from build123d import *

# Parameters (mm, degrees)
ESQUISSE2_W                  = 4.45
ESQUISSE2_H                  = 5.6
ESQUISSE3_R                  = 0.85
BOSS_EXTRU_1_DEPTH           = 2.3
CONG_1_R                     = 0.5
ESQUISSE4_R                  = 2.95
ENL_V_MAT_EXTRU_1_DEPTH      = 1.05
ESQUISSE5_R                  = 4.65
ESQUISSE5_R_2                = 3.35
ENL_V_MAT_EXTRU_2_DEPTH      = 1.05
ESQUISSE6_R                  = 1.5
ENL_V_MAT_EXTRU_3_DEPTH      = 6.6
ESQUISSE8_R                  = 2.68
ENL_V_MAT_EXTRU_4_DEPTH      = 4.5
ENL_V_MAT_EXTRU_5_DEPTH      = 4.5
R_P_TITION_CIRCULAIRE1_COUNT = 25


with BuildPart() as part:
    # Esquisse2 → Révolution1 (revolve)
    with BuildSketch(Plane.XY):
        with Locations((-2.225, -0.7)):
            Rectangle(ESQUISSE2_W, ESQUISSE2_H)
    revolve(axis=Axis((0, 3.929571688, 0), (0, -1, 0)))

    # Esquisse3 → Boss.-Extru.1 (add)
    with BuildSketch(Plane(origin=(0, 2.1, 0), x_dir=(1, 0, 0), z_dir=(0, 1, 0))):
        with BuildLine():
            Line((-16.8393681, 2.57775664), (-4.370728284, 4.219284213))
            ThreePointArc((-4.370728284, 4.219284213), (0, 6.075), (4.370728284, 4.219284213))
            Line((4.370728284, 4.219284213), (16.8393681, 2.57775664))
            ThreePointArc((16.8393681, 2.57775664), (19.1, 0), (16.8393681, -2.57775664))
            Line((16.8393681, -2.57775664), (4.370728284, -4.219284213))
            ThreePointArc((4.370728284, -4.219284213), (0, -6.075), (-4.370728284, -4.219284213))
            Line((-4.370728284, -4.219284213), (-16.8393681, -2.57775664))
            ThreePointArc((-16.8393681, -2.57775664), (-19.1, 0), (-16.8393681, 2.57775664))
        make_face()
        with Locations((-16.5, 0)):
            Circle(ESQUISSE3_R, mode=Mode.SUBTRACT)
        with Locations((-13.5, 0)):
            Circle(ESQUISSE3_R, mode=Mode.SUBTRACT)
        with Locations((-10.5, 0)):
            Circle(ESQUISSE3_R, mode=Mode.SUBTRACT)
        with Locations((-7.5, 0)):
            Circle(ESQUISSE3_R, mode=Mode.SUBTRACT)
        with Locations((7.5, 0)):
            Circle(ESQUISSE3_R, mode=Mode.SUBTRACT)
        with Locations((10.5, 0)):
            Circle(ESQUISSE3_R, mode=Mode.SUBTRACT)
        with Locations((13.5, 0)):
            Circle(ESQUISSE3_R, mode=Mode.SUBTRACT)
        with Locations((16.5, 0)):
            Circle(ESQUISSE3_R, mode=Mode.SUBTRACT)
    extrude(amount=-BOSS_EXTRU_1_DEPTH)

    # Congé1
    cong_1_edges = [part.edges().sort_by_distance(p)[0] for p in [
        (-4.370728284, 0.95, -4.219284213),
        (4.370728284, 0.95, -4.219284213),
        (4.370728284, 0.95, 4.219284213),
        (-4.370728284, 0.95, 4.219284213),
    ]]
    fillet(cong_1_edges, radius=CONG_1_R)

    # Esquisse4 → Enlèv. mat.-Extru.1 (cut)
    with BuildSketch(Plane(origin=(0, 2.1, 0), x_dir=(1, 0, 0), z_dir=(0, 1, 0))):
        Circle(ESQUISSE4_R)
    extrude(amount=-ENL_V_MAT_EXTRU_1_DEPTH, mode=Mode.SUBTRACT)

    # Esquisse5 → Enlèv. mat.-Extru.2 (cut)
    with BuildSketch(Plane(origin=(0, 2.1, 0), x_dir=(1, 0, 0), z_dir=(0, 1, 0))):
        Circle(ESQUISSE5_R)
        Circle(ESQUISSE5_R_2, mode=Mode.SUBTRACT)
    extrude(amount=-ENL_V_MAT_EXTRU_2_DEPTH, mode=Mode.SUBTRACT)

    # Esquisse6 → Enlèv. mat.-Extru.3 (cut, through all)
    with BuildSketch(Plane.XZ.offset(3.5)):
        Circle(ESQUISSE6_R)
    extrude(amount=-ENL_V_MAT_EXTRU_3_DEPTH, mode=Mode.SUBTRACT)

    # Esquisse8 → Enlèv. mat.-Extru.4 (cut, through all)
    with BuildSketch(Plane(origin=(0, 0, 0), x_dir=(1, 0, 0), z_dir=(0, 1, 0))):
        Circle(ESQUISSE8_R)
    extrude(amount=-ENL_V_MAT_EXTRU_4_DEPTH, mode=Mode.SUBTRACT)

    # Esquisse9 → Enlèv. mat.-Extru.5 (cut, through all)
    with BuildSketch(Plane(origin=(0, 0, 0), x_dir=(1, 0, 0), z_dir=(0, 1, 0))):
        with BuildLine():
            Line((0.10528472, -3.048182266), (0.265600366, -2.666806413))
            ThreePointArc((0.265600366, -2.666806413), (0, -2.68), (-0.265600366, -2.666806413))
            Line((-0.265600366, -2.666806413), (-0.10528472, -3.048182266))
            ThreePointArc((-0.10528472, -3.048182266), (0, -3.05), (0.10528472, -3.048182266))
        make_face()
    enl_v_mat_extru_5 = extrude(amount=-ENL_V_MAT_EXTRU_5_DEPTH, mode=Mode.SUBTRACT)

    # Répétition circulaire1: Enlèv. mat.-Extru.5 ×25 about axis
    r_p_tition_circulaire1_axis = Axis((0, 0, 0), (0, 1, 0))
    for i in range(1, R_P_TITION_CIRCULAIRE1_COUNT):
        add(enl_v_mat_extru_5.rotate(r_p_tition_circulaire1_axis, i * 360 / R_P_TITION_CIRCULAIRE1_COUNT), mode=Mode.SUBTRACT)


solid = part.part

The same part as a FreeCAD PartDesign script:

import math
import FreeCAD as App
import Part
import Sketcher
Q = App.Units.Quantity


def edges_at(feature, points):
    """Names of the edges that pass closest to the given points."""
    edges = feature.Shape.Edges
    near = lambda p: min(range(len(edges)), key=lambda i: edges[i].distToShape(Part.Vertex(*p))[0])
    return sorted({f"Edge{near(p) + 1}" for p in points})

doc = App.newDocument("Part")
body = doc.addObject("PartDesign::Body", "Body")

# Sketch on XY plane
sketch1 = body.newObject("Sketcher::SketchObject", "Sketch")
sketch1.AttachmentSupport = (doc.getObject("XY_Plane"), [""])
sketch1.MapMode = "FlatFace"
sketch1.addGeometry([
    Part.LineSegment(App.Vector(-4.5, 2.1, 0), App.Vector(-4.5, -3.5, 0)),
    Part.LineSegment(App.Vector(-4.5, -3.5, 0), App.Vector(0, -3.5, 0)),
    Part.LineSegment(App.Vector(0, -3.5, 0), App.Vector(0, 2.1, 0)),
    Part.LineSegment(App.Vector(0, 2.1, 0), App.Vector(-4.5, 2.1, 0)),
], False)
sketch1.addConstraint([
    Sketcher.Constraint("Coincident", 0, 2, 1, 1),
    Sketcher.Constraint("Coincident", 1, 2, 2, 1),
    Sketcher.Constraint("Coincident", 2, 2, 3, 1),
    Sketcher.Constraint("Coincident", 3, 2, 0, 1),
    Sketcher.Constraint("Vertical", 0),
    Sketcher.Constraint("Horizontal", 1),
    Sketcher.Constraint("Vertical", 2),
    Sketcher.Constraint("Horizontal", 3),
    Sketcher.Constraint("PointOnObject", 1, 2, -2),
    Sketcher.Constraint("DistanceY", 0, 2, 0, 1, 5.6),
    Sketcher.Constraint("DistanceX", 1, 1, 1, 2, 4.45),
    Sketcher.Constraint("DistanceY", 0, 2, -1, 1, 3.5),
])
revolution = body.newObject("PartDesign::Revolution", "Revolution")
revolution.Profile = sketch1
revolution.ReferenceAxis = (sketch1, ["V_Axis"])
revolution.Angle = 360

# Sketch on XZ plane
sketch2 = body.newObject("Sketcher::SketchObject", "Sketch001")
sketch2.AttachmentSupport = (doc.getObject("XZ_Plane"), [""])
sketch2.MapMode = "FlatFace"
sketch2.AttachmentOffset = App.Placement(App.Vector(0, 0, -2.1), App.Rotation())
sketch2.addGeometry([
    Part.LineSegment(App.Vector(-4.4, -4.2, 0), App.Vector(-16.8, -2.6, 0)),  # 0
    Part.ArcOfCircle(Part.Circle(App.Vector(-16.5, 0, 0), App.Vector(0, 0, 1), 2.6), math.radians(98), math.radians(262)),  # 1
    Part.LineSegment(App.Vector(-16.8, 2.6, 0), App.Vector(-4.4, 4.2, 0)),  # 2
    Part.ArcOfCircle(Part.Circle(App.Vector(0, 0, 0), App.Vector(0, 0, 1), 6.1), math.radians(44), math.radians(136)),  # 3
    Part.LineSegment(App.Vector(4.4, 4.2, 0), App.Vector(16.8, 2.6, 0)),  # 4
    Part.ArcOfCircle(Part.Circle(App.Vector(16.5, 0, 0), App.Vector(0, 0, 1), 2.6), math.radians(-82), math.radians(82)),  # 5
    Part.LineSegment(App.Vector(16.8, -2.6, 0), App.Vector(4.4, -4.2, 0)),  # 6
    Part.ArcOfCircle(Part.Circle(App.Vector(0, 0, 0), App.Vector(0, 0, 1), 6.1), math.radians(-136), math.radians(-44)),  # 7
    Part.Circle(App.Vector(16.5, 0, 0), App.Vector(0, 0, 1), 0.8),  # 8
    Part.Circle(App.Vector(13.5, 0, 0), App.Vector(0, 0, 1), 0.8),  # 9
    Part.Circle(App.Vector(10.5, 0, 0), App.Vector(0, 0, 1), 0.8),  # 10
    Part.Circle(App.Vector(7.5, 0, 0), App.Vector(0, 0, 1), 0.8),  # 11
    Part.Circle(App.Vector(-7.5, 0, 0), App.Vector(0, 0, 1), 0.8),  # 12
    Part.Circle(App.Vector(-10.5, 0, 0), App.Vector(0, 0, 1), 0.8),  # 13
    Part.Circle(App.Vector(-13.5, 0, 0), App.Vector(0, 0, 1), 0.8),  # 14
    Part.Circle(App.Vector(-16.5, 0, 0), App.Vector(0, 0, 1), 0.8),  # 15
], False)
sketch2.addConstraint([
    Sketcher.Constraint("Tangent", 0, 2, 1, 2),
    Sketcher.Constraint("Tangent", 1, 1, 2, 1),
    Sketcher.Constraint("Coincident", 2, 2, 3, 2),
    Sketcher.Constraint("Coincident", 3, 1, 4, 1),
    Sketcher.Constraint("Tangent", 4, 2, 5, 2),
    Sketcher.Constraint("Tangent", 5, 1, 6, 1),
    Sketcher.Constraint("Coincident", 6, 2, 7, 2),
    Sketcher.Constraint("Coincident", 7, 1, 0, 1),
    Sketcher.Constraint("Coincident", 3, 3, -1, 1),
    Sketcher.Constraint("Coincident", 7, 3, -1, 1),
    Sketcher.Constraint("Coincident", 8, 3, 5, 3),
    Sketcher.Constraint("Coincident", 15, 3, 1, 3),
    Sketcher.Constraint("Equal", 1, 5),
    Sketcher.Constraint("Equal", 3, 7),
    Sketcher.Constraint("Equal", 8, 9),
    Sketcher.Constraint("Equal", 9, 10),
    Sketcher.Constraint("Equal", 10, 11),
    Sketcher.Constraint("Equal", 11, 12),
    Sketcher.Constraint("Equal", 12, 13),
    Sketcher.Constraint("Equal", 13, 14),
    Sketcher.Constraint("Equal", 14, 15),
    Sketcher.Constraint("Symmetric", 1, 3, 5, 3, -1, 1),
    Sketcher.Constraint("Symmetric", 11, 3, 12, 3, -1, 1),
    Sketcher.Constraint("Symmetric", 10, 3, 13, 3, -1, 1),
    Sketcher.Constraint("Symmetric", 9, 3, 14, 3, -1, 1),
    Sketcher.Constraint("Symmetric", 1, 1, 4, 2, -2),
    Sketcher.Constraint("PointOnObject", 9, 3, -1),
    Sketcher.Constraint("PointOnObject", 10, 3, -1),
    Sketcher.Constraint("PointOnObject", 11, 3, -1),
    Sketcher.Constraint("Parallel", 0, 4),
    Sketcher.Constraint("Parallel", 2, 6),
    Sketcher.Constraint("Diameter", 8, 1.7),
    Sketcher.Constraint("Radius", 1, 2.6),
    Sketcher.Constraint("Angle", 0, Q("172.5 deg")),
    Sketcher.Constraint("Radius", 3, 6.075),
    Sketcher.Constraint("DistanceX", 1, 3, 5, 3, 33.0),
    Sketcher.Constraint("DistanceX", 9, 3, 5, 3, 3.0),
    Sketcher.Constraint("DistanceX", 10, 3, 9, 3, 3.0),
    Sketcher.Constraint("DistanceX", 11, 3, 10, 3, 3.0),
])
pad1 = body.newObject("PartDesign::Pad", "Pad")
pad1.Profile = sketch2
pad1.Length = 2.3
doc.recompute()

fillet = body.newObject("PartDesign::Fillet", "Fillet")
fillet.Base = (pad1, edges_at(pad1, [
    (-4.371, 0.95, -4.219),
    (4.371, 0.95, -4.219),
    (4.371, 0.95, 4.219),
    (-4.371, 0.95, 4.219),
]))
fillet.Radius = 0.5

# Sketch on XZ plane
sketch3 = body.newObject("Sketcher::SketchObject", "Sketch002")
sketch3.AttachmentSupport = (doc.getObject("XZ_Plane"), [""])
sketch3.MapMode = "FlatFace"
sketch3.AttachmentOffset = App.Placement(App.Vector(0, 0, -2.1), App.Rotation())
sketch3.addGeometry(Part.Circle(App.Vector(0, 0, 0), App.Vector(0, 0, 1), 3), False)
sketch3.addConstraint([
    Sketcher.Constraint("Coincident", 0, 3, -1, 1),
    Sketcher.Constraint("Diameter", 0, 5.9),
])
pocket1 = body.newObject("PartDesign::Pocket", "Pocket")
pocket1.Profile = sketch3
pocket1.Length = 1.05
pocket1.Reversed = True

# Sketch on XZ plane
sketch4 = body.newObject("Sketcher::SketchObject", "Sketch003")
sketch4.AttachmentSupport = (doc.getObject("XZ_Plane"), [""])
sketch4.MapMode = "FlatFace"
sketch4.AttachmentOffset = App.Placement(App.Vector(0, 0, -2.1), App.Rotation())
sketch4.addGeometry([
    Part.Circle(App.Vector(0, 0, 0), App.Vector(0, 0, 1), 4.7),
    Part.Circle(App.Vector(0, 0, 0), App.Vector(0, 0, 1), 3.4),
], False)
sketch4.addConstraint([
    Sketcher.Constraint("Coincident", 0, 3, -1, 1),
    Sketcher.Constraint("Coincident", 1, 3, -1, 1),
    Sketcher.Constraint("Diameter", 0, 9.3),
    Sketcher.Constraint("Diameter", 1, 6.7),
])
pocket2 = body.newObject("PartDesign::Pocket", "Pocket001")
pocket2.Profile = sketch4
pocket2.Length = 1.05
pocket2.Reversed = True

# Sketch on XZ plane
sketch5 = body.newObject("Sketcher::SketchObject", "Sketch004")
sketch5.AttachmentSupport = (doc.getObject("XZ_Plane"), [""])
sketch5.MapMode = "FlatFace"
sketch5.AttachmentOffset = App.Placement(App.Vector(0, 0, 3.5), App.Rotation())
sketch5.addGeometry(Part.Circle(App.Vector(0, 0, 0), App.Vector(0, 0, 1), 1.5), False)
sketch5.addConstraint([
    Sketcher.Constraint("Coincident", 0, 3, -1, 1),
    Sketcher.Constraint("Diameter", 0, 3.0),
])
pocket3 = body.newObject("PartDesign::Pocket", "Pocket002")
pocket3.Profile = sketch5
pocket3.Type = "ThroughAll"

# Sketch on XZ plane
sketch6 = body.newObject("Sketcher::SketchObject", "Sketch005")
sketch6.AttachmentSupport = (doc.getObject("XZ_Plane"), [""])
sketch6.MapMode = "FlatFace"
sketch6.addGeometry(Part.Circle(App.Vector(0, 0, 0), App.Vector(0, 0, 1), 2.7), False)
sketch6.addConstraint([
    Sketcher.Constraint("Coincident", 0, 3, -1, 1),
    Sketcher.Constraint("Diameter", 0, 5.36),
])
pocket4 = body.newObject("PartDesign::Pocket", "Pocket003")
pocket4.Profile = sketch6
pocket4.Type = "ThroughAll"
pocket4.Reversed = True

# Sketch on XZ plane
sketch7 = body.newObject("Sketcher::SketchObject", "Sketch006")
sketch7.AttachmentSupport = (doc.getObject("XZ_Plane"), [""])
sketch7.MapMode = "FlatFace"
sketch7.addGeometry([
    Part.LineSegment(App.Vector(0.11, 3.05, 0), App.Vector(0.27, 2.67, 0)),
    Part.ArcOfCircle(Part.Circle(App.Vector(0, 0, 0), App.Vector(0, 0, 1), 2.68), math.radians(84.31), math.radians(95.69)),
    Part.LineSegment(App.Vector(-0.27, 2.67, 0), App.Vector(-0.11, 3.05, 0)),
    Part.ArcOfCircle(Part.Circle(App.Vector(0, 0, 0), App.Vector(0, 0, 1), 3.05), math.radians(88.02), math.radians(91.98)),
], False)
sketch7.addConstraint([
    Sketcher.Constraint("Coincident", 0, 2, 1, 1),
    Sketcher.Constraint("Coincident", 1, 2, 2, 1),
    Sketcher.Constraint("Coincident", 2, 2, 3, 2),
    Sketcher.Constraint("Coincident", 3, 1, 0, 1),
    Sketcher.Constraint("Coincident", 1, 3, -1, 1),
    Sketcher.Constraint("Coincident", 3, 3, -1, 1),
    Sketcher.Constraint("Horizontal", 0, 2, 1, 2),
    Sketcher.Constraint("Horizontal", 2, 2, 3, 1),
    Sketcher.Constraint("Radius", 1, 2.68),
    Sketcher.Constraint("Radius", 3, 3.05),
    Sketcher.Constraint("Angle", 0, Q("-67.2 deg")),
    Sketcher.Constraint("Distance", 0, 0.413701),
])
pocket5 = body.newObject("PartDesign::Pocket", "Pocket004")
pocket5.Profile = sketch7
pocket5.Type = "ThroughAll"
pocket5.Reversed = True
doc.recompute()

polarpattern = body.newObject("PartDesign::PolarPattern", "PolarPattern")
polarpattern.Originals = [pocket5]
polarpattern.Axis = (doc.getObject("Y_Axis"), [""])
polarpattern.Angle = 360
polarpattern.Occurrences = 25
body.Tip = polarpattern

doc.recompute()
